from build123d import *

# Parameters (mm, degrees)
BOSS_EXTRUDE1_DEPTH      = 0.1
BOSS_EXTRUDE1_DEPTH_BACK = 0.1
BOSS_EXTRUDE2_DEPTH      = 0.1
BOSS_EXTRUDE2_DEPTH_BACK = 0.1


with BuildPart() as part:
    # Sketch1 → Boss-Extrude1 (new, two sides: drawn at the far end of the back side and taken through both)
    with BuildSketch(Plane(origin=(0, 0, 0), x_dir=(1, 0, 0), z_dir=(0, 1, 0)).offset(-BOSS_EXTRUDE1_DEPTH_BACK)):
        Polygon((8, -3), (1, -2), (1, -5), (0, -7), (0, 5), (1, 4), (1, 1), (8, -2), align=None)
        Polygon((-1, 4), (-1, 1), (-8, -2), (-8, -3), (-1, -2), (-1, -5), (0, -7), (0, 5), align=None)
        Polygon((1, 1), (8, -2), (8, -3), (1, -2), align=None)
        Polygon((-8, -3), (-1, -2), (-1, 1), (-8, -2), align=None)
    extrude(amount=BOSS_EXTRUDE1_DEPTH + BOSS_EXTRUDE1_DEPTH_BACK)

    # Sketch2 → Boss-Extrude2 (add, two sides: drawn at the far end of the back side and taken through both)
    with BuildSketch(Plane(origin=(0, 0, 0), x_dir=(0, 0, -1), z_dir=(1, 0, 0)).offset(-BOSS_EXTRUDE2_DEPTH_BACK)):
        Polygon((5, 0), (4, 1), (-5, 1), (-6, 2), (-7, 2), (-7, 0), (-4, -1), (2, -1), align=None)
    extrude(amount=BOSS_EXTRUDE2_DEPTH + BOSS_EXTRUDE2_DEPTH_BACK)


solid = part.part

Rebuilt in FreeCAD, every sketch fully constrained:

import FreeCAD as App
import Part
import Sketcher
Q = App.Units.Quantity


def add_polygon(sketch, points):
    """Adds a closed chain of lines whose ends are joined by coincident constraints."""
    first, n = sketch.GeometryCount, len(points)
    for a, b in zip(points, points[1:] + points[:1]):
        sketch.addGeometry(Part.LineSegment(App.Vector(*a, 0), App.Vector(*b, 0)), False)
    for i in range(n):
        sketch.addConstraint(Sketcher.Constraint("Coincident", first + i, 2, first + (i + 1) % n, 1))

doc = App.newDocument("Part")
params = doc.addObject("Spreadsheet::Sheet", "Params")
for row, (alias, value) in enumerate([
    ("sketch1_height", "3 mm"),
    ("sketch1_height2", "1 mm"),
    ("pad1_length", "0.1 mm"),
    ("pad1_length2", "0.1 mm"),
    ("sketch2_width", "2 mm"),
    ("sketch2_height", "9 mm"),
    ("sketch2_height2", "1 mm"),
    ("sketch2_height3", "6 mm"),
    ("pad2_length", "0.1 mm"),
    ("pad2_length2", "0.1 mm"),
], start=1):
    params.set(f"A{row}", alias)
    params.set(f"B{row}", "=" + value)
    params.setAlias(f"B{row}", alias)

body = doc.addObject("PartDesign::Body", "Body")

# Sketch on XZ plane
sketch1 = doc.addObject("Sketcher::SketchObject", "Sketch")
body.addObject(sketch1)
sketch1.AttachmentSupport = (doc.XZ_Plane, [""])
sketch1.MapMode = "FlatFace"
add_polygon(sketch1, [(8, 2), (1, -1), (1, -4), (0, -5), (-1, -4), (-1, -1), (-8, 2), (-8, 3), (-1, 2), (-1, 5), (0, 7), (1, 5), (1, 2), (8, 3)])  # lines 0-13
sketch1.addConstraint([
    Sketcher.Constraint("Vertical", 1),
    Sketcher.Constraint("Vertical", 4),
    Sketcher.Constraint("Vertical", 6),
    Sketcher.Constraint("Vertical", 8),
    Sketcher.Constraint("Vertical", 11),
    Sketcher.Constraint("Vertical", 13),
    Sketcher.Constraint("Symmetric", 1, 2, 3, 2, -2),
    Sketcher.Constraint("Symmetric", 8, 2, 10, 2, -2),
    Sketcher.Constraint("Symmetric", 6, 2, 12, 2, -2),
    Sketcher.Constraint("PointOnObject", 2, 2, -2),
    Sketcher.Constraint("PointOnObject", 9, 2, -2),
    Sketcher.Constraint("Perpendicular", 2, 3),
    Sketcher.Constraint("Horizontal", 0, 2, 4, 2),
    Sketcher.Constraint("Horizontal", 5, 2, 7, 2),
    Sketcher.Constraint("Horizontal", 7, 2, 11, 2),
    Sketcher.Constraint("Horizontal", 11, 2, 13, 2),
    Sketcher.Constraint("Vertical", 4, 2, 7, 2),
    Sketcher.Constraint("Equal", 4, 8),
    Sketcher.Constraint("DistanceY", 1, 2, 1, 1, Q("3 mm")),
    Sketcher.Constraint("DistanceY", 6, 1, 6, 2, Q("1 mm")),
    Sketcher.Constraint("DistanceX", -1, 1, 0, 2, Q("1 mm")),
    Sketcher.Constraint("DistanceY", 0, 2, -1, 1, Q("1 mm")),
    Sketcher.Constraint("DistanceX", 5, 2, -1, 1, Q("8 mm")),
    Sketcher.Constraint("DistanceY", -1, 1, 5, 2, Q("2 mm")),
    Sketcher.Constraint("DistanceY", -1, 1, 9, 2, Q("7 mm")),
])
sketch1.setExpression("Constraints[32]", "Params.sketch1_height")
sketch1.setExpression("Constraints[33]", "Params.sketch1_height2")
pad1 = doc.addObject("PartDesign::Pad", "Pad")
body.addObject(pad1)
pad1.Profile = sketch1
pad1.Type = "TwoLengths"
pad1.setExpression("Length", "Params.pad1_length")
pad1.setExpression("Length2", "Params.pad1_length2")
pad1.Reversed = True

# Sketch on YZ plane
sketch2 = doc.addObject("Sketcher::SketchObject", "Sketch001")
body.addObject(sketch2)
sketch2.AttachmentSupport = (doc.YZ_Plane, [""])
sketch2.MapMode = "FlatFace"
add_polygon(sketch2, [(0, -5), (1, -4), (1, 5), (2, 6), (2, 7), (0, 7), (-1, 4), (-1, -2)])  # lines 0-7
sketch2.addConstraint([
    Sketcher.Constraint("Vertical", 1),
    Sketcher.Constraint("Vertical", 3),
    Sketcher.Constraint("Horizontal", 4),
    Sketcher.Constraint("Vertical", 6),
    Sketcher.Constraint("Symmetric", 0, 2, 5, 2, -1, 1),
    Sketcher.Constraint("PointOnObject", 4, 2, -2),
    Sketcher.Constraint("PointOnObject", 7, 2, -2),
    Sketcher.Constraint("Parallel", 0, 2),
    Sketcher.Constraint("Equal", 0, 2),
    Sketcher.Constraint("Equal", 5, 7),
    Sketcher.Constraint("DistanceX", 4, 2, 4, 1, Q("2 mm")),
    Sketcher.Constraint("DistanceY", 1, 1, 1, 2, Q("9 mm")),
    Sketcher.Constraint("DistanceY", 3, 1, 3, 2, Q("1 mm")),
    Sketcher.Constraint("DistanceY", 6, 2, 6, 1, Q("6 mm")),
    Sketcher.Constraint("Angle", 0, Q("45 deg")),
])
sketch2.setExpression("Constraints[18]", "Params.sketch2_width")
sketch2.setExpression("Constraints[19]", "Params.sketch2_height")
sketch2.setExpression("Constraints[20]", "Params.sketch2_height2")
sketch2.setExpression("Constraints[21]", "Params.sketch2_height3")
pad2 = doc.addObject("PartDesign::Pad", "Pad001")
body.addObject(pad2)
pad2.Profile = sketch2
pad2.Type = "TwoLengths"
pad2.setExpression("Length", "Params.pad2_length")
pad2.setExpression("Length2", "Params.pad2_length2")

doc.recompute()
